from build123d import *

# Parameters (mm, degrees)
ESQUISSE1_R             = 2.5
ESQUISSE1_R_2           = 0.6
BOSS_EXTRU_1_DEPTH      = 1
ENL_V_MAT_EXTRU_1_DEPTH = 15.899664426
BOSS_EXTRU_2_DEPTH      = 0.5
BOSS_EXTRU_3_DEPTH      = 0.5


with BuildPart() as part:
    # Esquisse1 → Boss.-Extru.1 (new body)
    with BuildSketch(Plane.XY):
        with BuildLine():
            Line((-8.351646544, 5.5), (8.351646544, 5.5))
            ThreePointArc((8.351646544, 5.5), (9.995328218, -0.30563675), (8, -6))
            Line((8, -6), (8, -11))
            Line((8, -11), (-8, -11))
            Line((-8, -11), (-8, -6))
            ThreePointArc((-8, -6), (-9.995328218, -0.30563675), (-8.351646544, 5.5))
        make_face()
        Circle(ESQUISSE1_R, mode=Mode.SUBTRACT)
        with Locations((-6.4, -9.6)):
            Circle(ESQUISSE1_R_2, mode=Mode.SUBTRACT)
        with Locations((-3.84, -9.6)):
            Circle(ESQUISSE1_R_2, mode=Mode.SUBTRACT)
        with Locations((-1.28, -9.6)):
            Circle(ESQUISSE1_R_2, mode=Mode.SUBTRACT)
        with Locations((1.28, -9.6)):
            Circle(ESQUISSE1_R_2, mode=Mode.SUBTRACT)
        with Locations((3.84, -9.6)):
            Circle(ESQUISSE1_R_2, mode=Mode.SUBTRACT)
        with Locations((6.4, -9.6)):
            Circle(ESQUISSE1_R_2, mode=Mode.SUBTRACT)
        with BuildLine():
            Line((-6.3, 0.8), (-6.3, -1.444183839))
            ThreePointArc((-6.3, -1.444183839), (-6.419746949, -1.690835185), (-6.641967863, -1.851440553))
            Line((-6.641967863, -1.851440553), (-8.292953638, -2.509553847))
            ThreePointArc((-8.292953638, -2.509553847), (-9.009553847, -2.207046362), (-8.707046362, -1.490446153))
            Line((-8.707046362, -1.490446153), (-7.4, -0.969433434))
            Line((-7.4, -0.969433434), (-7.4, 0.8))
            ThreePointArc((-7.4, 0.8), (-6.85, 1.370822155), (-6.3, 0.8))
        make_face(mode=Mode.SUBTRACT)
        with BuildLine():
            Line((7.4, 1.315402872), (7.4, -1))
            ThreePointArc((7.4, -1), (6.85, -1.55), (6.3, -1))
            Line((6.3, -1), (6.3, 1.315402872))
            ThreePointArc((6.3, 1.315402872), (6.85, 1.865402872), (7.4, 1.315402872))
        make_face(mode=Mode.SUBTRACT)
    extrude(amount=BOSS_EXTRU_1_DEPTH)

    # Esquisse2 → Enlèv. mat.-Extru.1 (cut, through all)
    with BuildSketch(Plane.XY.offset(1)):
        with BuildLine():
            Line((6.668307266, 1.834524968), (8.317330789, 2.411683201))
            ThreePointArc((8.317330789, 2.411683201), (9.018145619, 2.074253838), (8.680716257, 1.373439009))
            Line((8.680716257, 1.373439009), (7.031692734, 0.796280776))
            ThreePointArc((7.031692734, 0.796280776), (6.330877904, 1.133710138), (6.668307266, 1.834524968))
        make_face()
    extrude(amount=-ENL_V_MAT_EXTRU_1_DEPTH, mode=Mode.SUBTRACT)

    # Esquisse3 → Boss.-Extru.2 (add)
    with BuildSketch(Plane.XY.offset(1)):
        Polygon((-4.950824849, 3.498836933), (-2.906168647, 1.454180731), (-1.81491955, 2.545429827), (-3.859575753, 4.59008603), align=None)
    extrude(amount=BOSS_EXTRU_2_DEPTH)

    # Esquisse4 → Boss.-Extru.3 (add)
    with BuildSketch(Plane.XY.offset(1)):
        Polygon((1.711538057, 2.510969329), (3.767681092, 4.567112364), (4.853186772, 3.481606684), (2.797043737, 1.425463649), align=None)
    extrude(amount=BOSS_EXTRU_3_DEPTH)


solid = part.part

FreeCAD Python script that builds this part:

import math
import FreeCAD as App
import Part
import Sketcher
from FreeCAD import Vector
Q = App.Units.Quantity

doc = App.newDocument("Part")
params = doc.addObject("Spreadsheet::Sheet", "Params")
for row, (alias, value) in enumerate([
    ("sketch1_diameter", "5 mm"),
    ("sketch1_radius", "10 mm"),
    ("sketch1_radius2", "10 mm"),
    ("sketch1_diameter2", "1.2 mm"),
    ("sketch1_diameter3", "1.2 mm"),
    ("pad1_length", "1 mm"),
    ("sketch2_radius", "0.55 mm"),
    ("pad2_length", "0.5 mm"),
    ("pad3_length", "0.5 mm"),
], start=1):
    params.set(f"A{row}", alias)
    params.set(f"B{row}", "=" + value)
    params.setAlias(f"B{row}", alias)

body = doc.addObject("PartDesign::Body", "Body")

# Sketch on XY plane
sketch1 = body.newObject("Sketcher::SketchObject", "Sketch")
sketch1.AttachmentSupport = (doc.getObject("XY_Plane"), [""])
sketch1.MapMode = "FlatFace"
sketch1.addGeometry(Part.LineSegment(Vector(8.351647, 5.5, 0), Vector(-8.351647, 5.5, 0)), False)
sketch1.addGeometry(Part.ArcOfCircle(Part.Circle(Vector(0, 0, 0), Vector(0, 0, 1), 10), math.radians(146.632987), math.radians(216.869898)), False)
sketch1.addGeometry(Part.LineSegment(Vector(-8, -6, 0), Vector(-8, -11, 0)), False)
sketch1.addGeometry(Part.LineSegment(Vector(-8, -11, 0), Vector(8, -11, 0)), False)
sketch1.addGeometry(Part.LineSegment(Vector(8, -11, 0), Vector(8, -6, 0)), False)
sketch1.addGeometry(Part.ArcOfCircle(Part.Circle(Vector(0, 0, 0), Vector(0, 0, 1), 10), math.radians(-36.869898), math.radians(33.367013)), False)
sketch1.addGeometry(Part.Circle(Vector(6.4, -9.6, 0), Vector(0, 0, 1), 0.6), False)
sketch1.addGeometry(Part.Circle(Vector(3.84, -9.6, 0), Vector(0, 0, 1), 0.6), False)
sketch1.addGeometry(Part.Circle(Vector(1.28, -9.6, 0), Vector(0, 0, 1), 0.6), False)
sketch1.addGeometry(Part.Circle(Vector(-1.28, -9.6, 0), Vector(0, 0, 1), 0.6), False)
sketch1.addGeometry(Part.Circle(Vector(-3.84, -9.6, 0), Vector(0, 0, 1), 0.6), False)
sketch1.addGeometry(Part.Circle(Vector(-6.4, -9.6, 0), Vector(0, 0, 1), 0.6), False)
sketch1.addGeometry(Part.LineSegment(Vector(7.4, 1.315403, 0), Vector(7.4, -1, 0)), False)
sketch1.addGeometry(Part.ArcOfCircle(Part.Circle(Vector(6.85, -1, 0), Vector(0, 0, 1), 0.55), math.radians(180), math.radians(360)), False)
sketch1.addGeometry(Part.LineSegment(Vector(6.3, -1, 0), Vector(6.3, 1.315403, 0)), False)
sketch1.addGeometry(Part.ArcOfCircle(Part.Circle(Vector(6.85, 1.315403, 0), Vector(0, 0, 1), 0.55), math.radians(0), math.radians(180)), False)
sketch1.addGeometry(Part.Circle(Vector(0, 0, 0), Vector(0, 0, 1), 2.5), False)
sketch1.addGeometry(Part.LineSegment(Vector(-6.3, 0.8, 0), Vector(-6.3, -1.444184, 0)), False)
sketch1.addGeometry(Part.ArcOfCircle(Part.Circle(Vector(-6.85, -1.329558, 0), Vector(0, 0, 1), 0.561818), math.radians(-68.266865), math.radians(-11.772571)), False)
sketch1.addGeometry(Part.LineSegment(Vector(-6.641968, -1.851441, 0), Vector(-8.292954, -2.509554, 0)), False)
sketch1.addGeometry(Part.ArcOfCircle(Part.Circle(Vector(-8.5, -2, 0), Vector(0, 0, 1), 0.550012), math.radians(112.11332), math.radians(292.11332)), False)
sketch1.addGeometry(Part.LineSegment(Vector(-8.707046, -1.490446, 0), Vector(-7.4, -0.969433, 0)), False)
sketch1.addGeometry(Part.LineSegment(Vector(-7.4, -0.969433, 0), Vector(-7.4, 0.8, 0)), False)
sketch1.addGeometry(Part.ArcOfCircle(Part.Circle(Vector(-6.85, 0.820442, 0), Vector(0, 0, 1), 0.55038), math.radians(-2.128588), math.radians(182.128588)), False)
sketch1.addConstraint(Sketcher.Constraint("Coincident", 0, 2, 1, 1))
sketch1.addConstraint(Sketcher.Constraint("Coincident", 1, 2, 2, 1))
sketch1.addConstraint(Sketcher.Constraint("Coincident", 2, 2, 3, 1))
sketch1.addConstraint(Sketcher.Constraint("Coincident", 3, 2, 4, 1))
sketch1.addConstraint(Sketcher.Constraint("Coincident", 4, 2, 5, 1))
sketch1.addConstraint(Sketcher.Constraint("Coincident", 5, 2, 0, 1))
sketch1.addConstraint(Sketcher.Constraint("Coincident", 12, 2, 13, 2))
sketch1.addConstraint(Sketcher.Constraint("Coincident", 13, 1, 14, 1))
sketch1.addConstraint(Sketcher.Constraint("Coincident", 14, 2, 15, 2))
sketch1.addConstraint(Sketcher.Constraint("Coincident", 15, 1, 12, 1))
sketch1.addConstraint(Sketcher.Constraint("Coincident", 17, 2, 18, 2))
sketch1.addConstraint(Sketcher.Constraint("Coincident", 18, 1, 19, 1))
sketch1.addConstraint(Sketcher.Constraint("Coincident", 19, 2, 20, 2))
sketch1.addConstraint(Sketcher.Constraint("Coincident", 20, 1, 21, 1))
sketch1.addConstraint(Sketcher.Constraint("Coincident", 21, 2, 22, 1))
sketch1.addConstraint(Sketcher.Constraint("Coincident", 22, 2, 23, 2))
sketch1.addConstraint(Sketcher.Constraint("Coincident", 23, 1, 17, 1))
sketch1.addConstraint(Sketcher.Constraint("Horizontal", 0))
sketch1.addConstraint(Sketcher.Constraint("Vertical", 2))
sketch1.addConstraint(Sketcher.Constraint("Horizontal", 3))
sketch1.addConstraint(Sketcher.Constraint("Vertical", 4))
sketch1.addConstraint(Sketcher.Constraint("Vertical", 12))
sketch1.addConstraint(Sketcher.Constraint("Vertical", 14))
sketch1.addConstraint(Sketcher.Constraint("Vertical", 17))
sketch1.addConstraint(Sketcher.Constraint("Vertical", 22))
sketch1.addConstraint(Sketcher.Constraint("Coincident", 1, 3, -1, 1))
sketch1.addConstraint(Sketcher.Constraint("Coincident", 5, 3, -1, 1))
sketch1.addConstraint(Sketcher.Constraint("Coincident", 16, 3, -1, 1))
sketch1.addConstraint(Sketcher.Constraint("Diameter", 16, 5.0))
sketch1.addConstraint(Sketcher.Constraint("Radius", 1, 10.0))
sketch1.addConstraint(Sketcher.Constraint("Radius", 5, 10.0))
sketch1.addConstraint(Sketcher.Constraint("Diameter", 6, 1.2))
sketch1.addConstraint(Sketcher.Constraint("Diameter", 7, 1.2))
sketch1.addConstraint(Sketcher.Constraint("Diameter", 8, 1.2))
sketch1.addConstraint(Sketcher.Constraint("Diameter", 9, 1.2))
sketch1.addConstraint(Sketcher.Constraint("Diameter", 10, 1.2))
sketch1.addConstraint(Sketcher.Constraint("Diameter", 11, 1.2))
sketch1.addConstraint(Sketcher.Constraint("DistanceX", 3, 1, 3, 2, 16.0))
sketch1.addConstraint(Sketcher.Constraint("DistanceY", 2, 2, 2, 1, 5.0))
sketch1.addConstraint(Sketcher.Constraint("DistanceY", 4, 1, 4, 2, 5.0))
sketch1.addConstraint(Sketcher.Constraint("Radius", 13, 0.55))
sketch1.addConstraint(Sketcher.Constraint("DistanceY", 13, 3, -1, 1, 1.0))
sketch1.addConstraint(Sketcher.Constraint("DistanceY", 20, 3, -1, 1, 2.0))
sketch1.addConstraint(Sketcher.Constraint("DistanceY", 12, 2, -1, 1, 1.0))
sketch1.addConstraint(Sketcher.Constraint("DistanceY", 13, 1, -1, 1, 1.0))
sketch1.addConstraint(Sketcher.Constraint("DistanceX", -1, 1, 6, 3, 6.4))
sketch1.addConstraint(Sketcher.Constraint("DistanceY", 6, 3, -1, 1, 9.6))
sketch1.addConstraint(Sketcher.Constraint("DistanceY", 7, 3, -1, 1, 9.6))
sketch1.addConstraint(Sketcher.Constraint("DistanceY", 8, 3, -1, 1, 9.6))
sketch1.addConstraint(Sketcher.Constraint("DistanceY", 9, 3, -1, 1, 9.6))
sketch1.addConstraint(Sketcher.Constraint("DistanceY", 10, 3, -1, 1, 9.6))
sketch1.addConstraint(Sketcher.Constraint("DistanceX", 11, 3, -1, 1, 6.4))
sketch1.addConstraint(Sketcher.Constraint("DistanceY", 11, 3, -1, 1, 9.6))
sketch1.addConstraint(Sketcher.Constraint("DistanceX", 20, 3, -1, 1, 8.5))
sketch1.addConstraint(Sketcher.Constraint("DistanceY", -1, 1, 0, 2, 5.5))
sketch1.addConstraint(Sketcher.Constraint("DistanceX", -1, 1, 12, 2, 7.4))
sketch1.addConstraint(Sketcher.Constraint("DistanceX", 17, 2, -1, 1, 6.3))
sketch1.addConstraint(Sketcher.Constraint("DistanceX", 21, 2, -1, 1, 7.4))
sketch1.addConstraint(Sketcher.Constraint("DistanceY", -1, 1, 22, 2, 0.8))
sketch1.addConstraint(Sketcher.Constraint("DistanceY", -1, 1, 23, 1, 0.8))
sketch1.addConstraint(Sketcher.Constraint("DistanceX", -1, 1, 7, 3, 3.84))
sketch1.addConstraint(Sketcher.Constraint("DistanceX", -1, 1, 8, 3, 1.28))
sketch1.addConstraint(Sketcher.Constraint("DistanceX", 9, 3, -1, 1, 1.28))
sketch1.addConstraint(Sketcher.Constraint("DistanceX", 10, 3, -1, 1, 3.84))
sketch1.addConstraint(Sketcher.Constraint("DistanceX", 18, 3, -1, 1, 6.85))
sketch1.addConstraint(Sketcher.Constraint("Radius", 23, 0.55038))
sketch1.addConstraint(Sketcher.Constraint("DistanceY", 18, 3, 23, 3, 2.15))
sketch1.addConstraint(Sketcher.Constraint("Radius", 18, 0.561818))
sketch1.addConstraint(Sketcher.Constraint("Radius", 20, 0.550012))
sketch1.addConstraint(Sketcher.Constraint("Distance", 19, 1.77732))
sketch1.addConstraint(Sketcher.Constraint("DistanceY", 12, 2, 12, 1, 2.315403))
sketch1.addConstraint(Sketcher.Constraint("DistanceY", 14, 1, 14, 2, 2.315403))
sketch1.addConstraint(Sketcher.Constraint("DistanceY", 22, 1, 22, 2, 1.769433))
sketch1.addConstraint(Sketcher.Constraint("DistanceY", 18, 1, -1, 1, 1.851441))
sketch1.addConstraint(Sketcher.Constraint("DistanceY", 20, 1, 18, 3, 0.160889))
sketch1.addConstraint(Sketcher.Constraint("DistanceY", -1, 1, 15, 3, 1.315403))
sketch1.setExpression("Constraints[28]", "Params.sketch1_diameter")
sketch1.setExpression("Constraints[29]", "Params.sketch1_radius")
sketch1.setExpression("Constraints[30]", "Params.sketch1_radius2")
sketch1.setExpression("Constraints[31]", "Params.sketch1_diameter2")
sketch1.setExpression("Constraints[32]", "Params.sketch1_diameter3")
pad1 = body.newObject("PartDesign::Pad", "Pad")
pad1.Profile = sketch1
pad1.setExpression("Length", "Params.pad1_length")

# Sketch on XY plane
sketch2 = body.newObject("Sketcher::SketchObject", "Sketch001")
sketch2.AttachmentSupport = (doc.getObject("XY_Plane"), [""])
sketch2.MapMode = "FlatFace"
sketch2.AttachmentOffset = App.Placement(Vector(0, 0, 1), App.Rotation())
sketch2.addGeometry(Part.LineSegment(Vector(8.3, 2.4, 0), Vector(6.7, 1.8, 0)), False)
sketch2.addGeometry(Part.ArcOfCircle(Part.Circle(Vector(6.8, 1.3, 0), Vector(0, 0, 1), 0.6), math.radians(109), math.radians(289)), False)
sketch2.addGeometry(Part.LineSegment(Vector(7, 0.8, 0), Vector(8.7, 1.4, 0)), False)
sketch2.addGeometry(Part.ArcOfCircle(Part.Circle(Vector(8.5, 1.9, 0), Vector(0, 0, 1), 0.6), math.radians(-71), math.radians(109)), False)
sketch2.addConstraint(Sketcher.Constraint("Tangent", 0, 2, 1, 1))
sketch2.addConstraint(Sketcher.Constraint("Tangent", 1, 2, 2, 1))
sketch2.addConstraint(Sketcher.Constraint("Tangent", 2, 2, 3, 1))
sketch2.addConstraint(Sketcher.Constraint("Tangent", 3, 2, 0, 1))
sketch2.addConstraint(Sketcher.Constraint("Equal", 1, 3))
sketch2.addConstraint(Sketcher.Constraint("Radius", 1, 0.55))
sketch2.addConstraint(Sketcher.Constraint("DistanceX", -1, 1, 1, 3, 6.85))
sketch2.addConstraint(Sketcher.Constraint("Distance", 0, 1.747109))
sketch2.addConstraint(Sketcher.Constraint("DistanceY", -1, 1, 3, 3, 1.892561))
sketch2.addConstraint(Sketcher.Constraint("DistanceY", -1, 1, 1, 2, 0.796281))
sketch2.setExpression("Constraints[5]", "Params.sketch2_radius")
pocket1 = body.newObject("PartDesign::Pocket", "Pocket")
pocket1.Profile = sketch2
pocket1.Type = "ThroughAll"

# Sketch on XY plane
sketch3 = body.newObject("Sketcher::SketchObject", "Sketch002")
sketch3.AttachmentSupport = (doc.getObject("XY_Plane"), [""])
sketch3.MapMode = "FlatFace"
sketch3.AttachmentOffset = App.Placement(Vector(0, 0, 1), App.Rotation())
sketch3.addGeometry(Part.LineSegment(Vector(-5, 3.5, 0), Vector(-2.9, 1.5, 0)), False)
sketch3.addGeometry(Part.LineSegment(Vector(-2.9, 1.5, 0), Vector(-1.8, 2.5, 0)), False)
sketch3.addGeometry(Part.LineSegment(Vector(-1.8, 2.5, 0), Vector(-3.9, 4.6, 0)), False)
sketch3.addGeometry(Part.LineSegment(Vector(-3.9, 4.6, 0), Vector(-5, 3.5, 0)), False)
sketch3.addConstraint(Sketcher.Constraint("Coincident", 0, 2, 1, 1))
sketch3.addConstraint(Sketcher.Constraint("Coincident", 1, 2, 2, 1))
sketch3.addConstraint(Sketcher.Constraint("Coincident", 2, 2, 3, 1))
sketch3.addConstraint(Sketcher.Constraint("Coincident", 3, 2, 0, 1))
sketch3.addConstraint(Sketcher.Constraint("Perpendicular", 0, 1))
sketch3.addConstraint(Sketcher.Constraint("Perpendicular", 1, 2))
sketch3.addConstraint(Sketcher.Constraint("Perpendicular", 2, 3))
sketch3.addConstraint(Sketcher.Constraint("Angle", 0, Q("-45 deg")))
sketch3.addConstraint(Sketcher.Constraint("Distance", 0, 2.891581))
sketch3.addConstraint(Sketcher.Constraint("Distance", 1, 1.543259))
sketch3.addConstraint(Sketcher.Constraint("DistanceX", 0, 2, -1, 1, 2.906169))
sketch3.addConstraint(Sketcher.Constraint("DistanceY", -1, 1, 0, 2, 1.454181))
pad2 = body.newObject("PartDesign::Pad", "Pad001")
pad2.Profile = sketch3
pad2.setExpression("Length", "Params.pad2_length")

# Sketch on XY plane
sketch4 = body.newObject("Sketcher::SketchObject", "Sketch003")
sketch4.AttachmentSupport = (doc.getObject("XY_Plane"), [""])
sketch4.MapMode = "FlatFace"
sketch4.AttachmentOffset = App.Placement(Vector(0, 0, 1), App.Rotation())
sketch4.addGeometry(Part.LineSegment(Vector(3.8, 4.6, 0), Vector(1.7, 2.5, 0)), False)
sketch4.addGeometry(Part.LineSegment(Vector(1.7, 2.5, 0), Vector(2.8, 1.4, 0)), False)
sketch4.addGeometry(Part.LineSegment(Vector(2.8, 1.4, 0), Vector(4.9, 3.5, 0)), False)
sketch4.addGeometry(Part.LineSegment(Vector(4.9, 3.5, 0), Vector(3.8, 4.6, 0)), False)
sketch4.addConstraint(Sketcher.Constraint("Coincident", 0, 2, 1, 1))
sketch4.addConstraint(Sketcher.Constraint("Coincident", 1, 2, 2, 1))
sketch4.addConstraint(Sketcher.Constraint("Coincident", 2, 2, 3, 1))
sketch4.addConstraint(Sketcher.Constraint("Coincident", 3, 2, 0, 1))
sketch4.addConstraint(Sketcher.Constraint("Perpendicular", 0, 1))
sketch4.addConstraint(Sketcher.Constraint("Perpendicular", 1, 2))
sketch4.addConstraint(Sketcher.Constraint("Perpendicular", 2, 3))
sketch4.addConstraint(Sketcher.Constraint("Angle", 0, Q("-135 deg")))
sketch4.addConstraint(Sketcher.Constraint("DistanceX", -1, 1, 0, 2, 1.711538))
sketch4.addConstraint(Sketcher.Constraint("DistanceY", -1, 1, 0, 2, 2.510969))
sketch4.addConstraint(Sketcher.Constraint("DistanceX", -1, 1, 3, 2, 3.767681))
sketch4.addConstraint(Sketcher.Constraint("DistanceX", 0, 2, 2, 2, 3.141649))
pad3 = body.newObject("PartDesign::Pad", "Pad002")
pad3.Profile = sketch4
pad3.setExpression("Length", "Params.pad3_length")

doc.recompute()
